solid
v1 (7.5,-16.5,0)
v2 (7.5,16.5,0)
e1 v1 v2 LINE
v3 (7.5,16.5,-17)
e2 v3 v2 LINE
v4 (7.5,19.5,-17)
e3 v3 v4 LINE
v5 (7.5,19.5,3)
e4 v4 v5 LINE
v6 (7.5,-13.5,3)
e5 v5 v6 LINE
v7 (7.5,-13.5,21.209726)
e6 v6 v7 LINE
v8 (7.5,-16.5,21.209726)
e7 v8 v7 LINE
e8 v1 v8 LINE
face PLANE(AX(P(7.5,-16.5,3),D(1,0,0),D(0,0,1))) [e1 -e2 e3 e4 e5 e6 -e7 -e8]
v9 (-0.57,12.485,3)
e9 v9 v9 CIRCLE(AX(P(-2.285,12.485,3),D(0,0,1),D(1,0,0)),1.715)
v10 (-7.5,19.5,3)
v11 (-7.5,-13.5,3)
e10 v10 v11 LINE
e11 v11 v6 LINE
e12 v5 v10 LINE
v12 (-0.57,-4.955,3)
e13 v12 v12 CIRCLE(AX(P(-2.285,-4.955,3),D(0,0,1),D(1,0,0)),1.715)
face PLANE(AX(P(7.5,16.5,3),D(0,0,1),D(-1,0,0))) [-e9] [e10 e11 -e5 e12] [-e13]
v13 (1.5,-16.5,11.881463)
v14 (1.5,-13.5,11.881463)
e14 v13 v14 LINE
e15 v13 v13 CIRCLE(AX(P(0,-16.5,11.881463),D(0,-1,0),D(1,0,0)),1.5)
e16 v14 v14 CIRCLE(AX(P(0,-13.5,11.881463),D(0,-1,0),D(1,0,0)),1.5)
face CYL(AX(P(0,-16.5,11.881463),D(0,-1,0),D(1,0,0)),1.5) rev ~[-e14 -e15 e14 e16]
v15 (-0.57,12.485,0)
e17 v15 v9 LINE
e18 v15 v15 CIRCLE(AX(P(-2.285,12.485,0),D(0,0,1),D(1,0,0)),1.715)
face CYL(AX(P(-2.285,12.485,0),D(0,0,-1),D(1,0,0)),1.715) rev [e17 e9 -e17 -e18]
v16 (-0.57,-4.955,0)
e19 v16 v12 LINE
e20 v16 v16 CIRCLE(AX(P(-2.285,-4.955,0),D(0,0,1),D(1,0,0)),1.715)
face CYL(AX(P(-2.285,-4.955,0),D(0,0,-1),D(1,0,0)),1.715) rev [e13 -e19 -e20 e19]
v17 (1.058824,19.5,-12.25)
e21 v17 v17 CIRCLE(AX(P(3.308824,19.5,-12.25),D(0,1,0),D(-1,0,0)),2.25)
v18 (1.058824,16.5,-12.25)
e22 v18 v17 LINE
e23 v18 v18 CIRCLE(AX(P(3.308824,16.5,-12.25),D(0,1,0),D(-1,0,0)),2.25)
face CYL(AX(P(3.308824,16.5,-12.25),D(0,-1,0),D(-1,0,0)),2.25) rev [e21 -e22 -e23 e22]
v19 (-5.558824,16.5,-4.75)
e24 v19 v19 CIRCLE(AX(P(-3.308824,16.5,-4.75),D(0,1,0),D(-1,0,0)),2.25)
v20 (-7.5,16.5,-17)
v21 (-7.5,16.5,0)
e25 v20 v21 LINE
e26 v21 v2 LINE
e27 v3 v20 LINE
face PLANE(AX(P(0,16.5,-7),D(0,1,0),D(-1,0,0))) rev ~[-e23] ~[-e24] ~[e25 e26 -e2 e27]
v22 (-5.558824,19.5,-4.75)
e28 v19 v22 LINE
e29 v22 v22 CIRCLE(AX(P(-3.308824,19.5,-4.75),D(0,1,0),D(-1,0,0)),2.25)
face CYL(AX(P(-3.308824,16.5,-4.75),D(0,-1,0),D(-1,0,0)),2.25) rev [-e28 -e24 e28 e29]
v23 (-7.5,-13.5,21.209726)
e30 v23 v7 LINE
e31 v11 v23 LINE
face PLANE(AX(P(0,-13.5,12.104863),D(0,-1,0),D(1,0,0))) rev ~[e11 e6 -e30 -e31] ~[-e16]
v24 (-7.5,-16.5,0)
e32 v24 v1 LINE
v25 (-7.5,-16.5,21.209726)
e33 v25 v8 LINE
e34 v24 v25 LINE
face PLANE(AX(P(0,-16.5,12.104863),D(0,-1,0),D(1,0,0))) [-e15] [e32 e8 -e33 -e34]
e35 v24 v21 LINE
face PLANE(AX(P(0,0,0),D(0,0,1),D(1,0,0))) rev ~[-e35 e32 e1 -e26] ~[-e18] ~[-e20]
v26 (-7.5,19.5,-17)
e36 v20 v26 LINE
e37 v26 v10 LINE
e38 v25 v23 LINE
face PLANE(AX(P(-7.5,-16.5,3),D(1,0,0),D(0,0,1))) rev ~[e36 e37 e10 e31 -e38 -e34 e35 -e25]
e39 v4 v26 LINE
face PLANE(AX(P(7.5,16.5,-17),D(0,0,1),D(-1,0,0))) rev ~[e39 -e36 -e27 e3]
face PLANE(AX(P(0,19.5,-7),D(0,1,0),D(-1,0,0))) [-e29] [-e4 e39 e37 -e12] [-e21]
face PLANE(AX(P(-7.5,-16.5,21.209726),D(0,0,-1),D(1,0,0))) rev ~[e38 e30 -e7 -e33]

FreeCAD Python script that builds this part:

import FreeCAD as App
import Part
import Sketcher
from FreeCAD import Vector
Q = App.Units.Quantity


def add_polygon(sketch, points):
    """Adds a closed chain of lines whose ends are joined by coincident constraints."""
    first, n = sketch.GeometryCount, len(points)
    for a, b in zip(points, points[1:] + points[:1]):
        sketch.addGeometry(Part.LineSegment(App.Vector(*a, 0), App.Vector(*b, 0)), False)
    for i in range(n):
        sketch.addConstraint(Sketcher.Constraint("Coincident", first + i, 2, first + (i + 1) % n, 1))

doc = App.newDocument("Part")
body = doc.addObject("PartDesign::Body", "Body")

# Sketch on XY plane
sketch1 = body.newObject("Sketcher::SketchObject", "Sketch")
sketch1.AttachmentSupport = (doc.getObject("XY_Plane"), [""])
sketch1.MapMode = "FlatFace"
add_polygon(sketch1, [(-7.5, 16.5), (-7.5, -16.5), (7.5, -16.5), (7.5, 16.5)])  # lines 0-3
sketch1.addGeometry(Part.Circle(Vector(-2.3, -5, 0), Vector(0, 0, 1), 1.7), False)  # 4
sketch1.addGeometry(Part.Circle(Vector(-2.3, 12.5, 0), Vector(0, 0, 1), 1.7), False)  # 5
sketch1.addConstraint([
    Sketcher.Constraint("Vertical", 0),
    Sketcher.Constraint("Horizontal", 1),
    Sketcher.Constraint("Vertical", 2),
    Sketcher.Constraint("Horizontal", 3),
    Sketcher.Constraint("Equal", 4, 5),
    Sketcher.Constraint("Symmetric", 0, 2, 2, 2, -1, 1),
    Sketcher.Constraint("Vertical", 4, 3, 5, 3),
    Sketcher.Constraint("Diameter", 4, Q("3.43 mm")),
    Sketcher.Constraint("DistanceX", 1, 1, 1, 2, Q("15 mm")),
    Sketcher.Constraint("DistanceY", 0, 2, 0, 1, Q("33 mm")),
    Sketcher.Constraint("DistanceY", 4, 3, 5, 3, Q("17.44 mm")),
    Sketcher.Constraint("DistanceX", 4, 3, -1, 1, Q("2.285 mm")),
    Sketcher.Constraint("DistanceY", 4, 3, -1, 1, Q("4.955 mm")),
])
pad1 = body.newObject("PartDesign::Pad", "Pad")
pad1.Profile = sketch1
pad1.Length = 3

# Sketch on XZ plane
sketch2 = body.newObject("Sketcher::SketchObject", "Sketch001")
sketch2.AttachmentSupport = (doc.getObject("XZ_Plane"), [""])
sketch2.MapMode = "FlatFace"
sketch2.AttachmentOffset = App.Placement(Vector(0, 0, -16.5), App.Rotation())
add_polygon(sketch2, [(7.5, 3), (7.5, -17), (-7.5, -17), (-7.5, 3)])  # lines 0-3
sketch2.addGeometry(Part.Circle(Vector(3.3, -12.2, 0), Vector(0, 0, 1), 2.2), False)  # 4
sketch2.addGeometry(Part.Circle(Vector(-3.3, -4.8, 0), Vector(0, 0, 1), 2.2), False)  # 5
sketch2.addConstraint([
    Sketcher.Constraint("Vertical", 0),
    Sketcher.Constraint("Horizontal", 1),
    Sketcher.Constraint("Vertical", 2),
    Sketcher.Constraint("Horizontal", 3),
    Sketcher.Constraint("Equal", 4, 5),
    Sketcher.Constraint("Diameter", 4, Q("4.5 mm")),
    Sketcher.Constraint("DistanceX", 1, 2, 1, 1, Q("15 mm")),
    Sketcher.Constraint("DistanceY", 0, 2, 0, 1, Q("20 mm")),
    Sketcher.Constraint("DistanceY", 0, 2, -1, 1, Q("17 mm")),
    Sketcher.Constraint("DistanceX", -1, 1, 0, 2, Q("7.5 mm")),
    Sketcher.Constraint("DistanceY", 4, 3, 5, 3, Q("7.5 mm")),
    Sketcher.Constraint("DistanceY", 4, 3, -1, 1, Q("12.25 mm")),
    Sketcher.Constraint("DistanceX", -1, 1, 4, 3, Q("3.308824 mm")),
    Sketcher.Constraint("DistanceX", 5, 3, -1, 1, Q("3.308824 mm")),
])
pad2 = body.newObject("PartDesign::Pad", "Pad001")
pad2.Profile = sketch2
pad2.Length = 3
pad2.Reversed = True

# Sketch on XZ plane
sketch3 = body.newObject("Sketcher::SketchObject", "Sketch002")
sketch3.AttachmentSupport = (doc.getObject("XZ_Plane"), [""])
sketch3.MapMode = "FlatFace"
sketch3.AttachmentOffset = App.Placement(Vector(0, 0, 16.5), App.Rotation())
add_polygon(sketch3, [(-7.5, 21.2), (-7.5, 3), (7.5, 3), (7.5, 21.2)])  # lines 0-3
sketch3.addGeometry(Part.Circle(Vector(0, 11.9, 0), Vector(0, 0, 1), 1.5), False)  # 4
sketch3.addConstraint([
    Sketcher.Constraint("Vertical", 0),
    Sketcher.Constraint("Horizontal", 1),
    Sketcher.Constraint("Vertical", 2),
    Sketcher.Constraint("Horizontal", 3),
    Sketcher.Constraint("PointOnObject", 4, 3, -2),
    Sketcher.Constraint("Diameter", 4, Q("3 mm")),
    Sketcher.Constraint("DistanceX", 1, 1, 1, 2, Q("15 mm")),
    Sketcher.Constraint("DistanceY", -1, 1, 0, 2, Q("3 mm")),
    Sketcher.Constraint("DistanceX", 0, 2, -1, 1, Q("7.5 mm")),
    Sketcher.Constraint("DistanceY", 0, 2, 0, 1, Q("18.209726 mm")),
    Sketcher.Constraint("DistanceY", -1, 1, 4, 3, Q("11.881463 mm")),
])
pad3 = body.newObject("PartDesign::Pad", "Pad002")
pad3.Profile = sketch3
pad3.Length = 3
pad3.Reversed = True

doc.recompute()
